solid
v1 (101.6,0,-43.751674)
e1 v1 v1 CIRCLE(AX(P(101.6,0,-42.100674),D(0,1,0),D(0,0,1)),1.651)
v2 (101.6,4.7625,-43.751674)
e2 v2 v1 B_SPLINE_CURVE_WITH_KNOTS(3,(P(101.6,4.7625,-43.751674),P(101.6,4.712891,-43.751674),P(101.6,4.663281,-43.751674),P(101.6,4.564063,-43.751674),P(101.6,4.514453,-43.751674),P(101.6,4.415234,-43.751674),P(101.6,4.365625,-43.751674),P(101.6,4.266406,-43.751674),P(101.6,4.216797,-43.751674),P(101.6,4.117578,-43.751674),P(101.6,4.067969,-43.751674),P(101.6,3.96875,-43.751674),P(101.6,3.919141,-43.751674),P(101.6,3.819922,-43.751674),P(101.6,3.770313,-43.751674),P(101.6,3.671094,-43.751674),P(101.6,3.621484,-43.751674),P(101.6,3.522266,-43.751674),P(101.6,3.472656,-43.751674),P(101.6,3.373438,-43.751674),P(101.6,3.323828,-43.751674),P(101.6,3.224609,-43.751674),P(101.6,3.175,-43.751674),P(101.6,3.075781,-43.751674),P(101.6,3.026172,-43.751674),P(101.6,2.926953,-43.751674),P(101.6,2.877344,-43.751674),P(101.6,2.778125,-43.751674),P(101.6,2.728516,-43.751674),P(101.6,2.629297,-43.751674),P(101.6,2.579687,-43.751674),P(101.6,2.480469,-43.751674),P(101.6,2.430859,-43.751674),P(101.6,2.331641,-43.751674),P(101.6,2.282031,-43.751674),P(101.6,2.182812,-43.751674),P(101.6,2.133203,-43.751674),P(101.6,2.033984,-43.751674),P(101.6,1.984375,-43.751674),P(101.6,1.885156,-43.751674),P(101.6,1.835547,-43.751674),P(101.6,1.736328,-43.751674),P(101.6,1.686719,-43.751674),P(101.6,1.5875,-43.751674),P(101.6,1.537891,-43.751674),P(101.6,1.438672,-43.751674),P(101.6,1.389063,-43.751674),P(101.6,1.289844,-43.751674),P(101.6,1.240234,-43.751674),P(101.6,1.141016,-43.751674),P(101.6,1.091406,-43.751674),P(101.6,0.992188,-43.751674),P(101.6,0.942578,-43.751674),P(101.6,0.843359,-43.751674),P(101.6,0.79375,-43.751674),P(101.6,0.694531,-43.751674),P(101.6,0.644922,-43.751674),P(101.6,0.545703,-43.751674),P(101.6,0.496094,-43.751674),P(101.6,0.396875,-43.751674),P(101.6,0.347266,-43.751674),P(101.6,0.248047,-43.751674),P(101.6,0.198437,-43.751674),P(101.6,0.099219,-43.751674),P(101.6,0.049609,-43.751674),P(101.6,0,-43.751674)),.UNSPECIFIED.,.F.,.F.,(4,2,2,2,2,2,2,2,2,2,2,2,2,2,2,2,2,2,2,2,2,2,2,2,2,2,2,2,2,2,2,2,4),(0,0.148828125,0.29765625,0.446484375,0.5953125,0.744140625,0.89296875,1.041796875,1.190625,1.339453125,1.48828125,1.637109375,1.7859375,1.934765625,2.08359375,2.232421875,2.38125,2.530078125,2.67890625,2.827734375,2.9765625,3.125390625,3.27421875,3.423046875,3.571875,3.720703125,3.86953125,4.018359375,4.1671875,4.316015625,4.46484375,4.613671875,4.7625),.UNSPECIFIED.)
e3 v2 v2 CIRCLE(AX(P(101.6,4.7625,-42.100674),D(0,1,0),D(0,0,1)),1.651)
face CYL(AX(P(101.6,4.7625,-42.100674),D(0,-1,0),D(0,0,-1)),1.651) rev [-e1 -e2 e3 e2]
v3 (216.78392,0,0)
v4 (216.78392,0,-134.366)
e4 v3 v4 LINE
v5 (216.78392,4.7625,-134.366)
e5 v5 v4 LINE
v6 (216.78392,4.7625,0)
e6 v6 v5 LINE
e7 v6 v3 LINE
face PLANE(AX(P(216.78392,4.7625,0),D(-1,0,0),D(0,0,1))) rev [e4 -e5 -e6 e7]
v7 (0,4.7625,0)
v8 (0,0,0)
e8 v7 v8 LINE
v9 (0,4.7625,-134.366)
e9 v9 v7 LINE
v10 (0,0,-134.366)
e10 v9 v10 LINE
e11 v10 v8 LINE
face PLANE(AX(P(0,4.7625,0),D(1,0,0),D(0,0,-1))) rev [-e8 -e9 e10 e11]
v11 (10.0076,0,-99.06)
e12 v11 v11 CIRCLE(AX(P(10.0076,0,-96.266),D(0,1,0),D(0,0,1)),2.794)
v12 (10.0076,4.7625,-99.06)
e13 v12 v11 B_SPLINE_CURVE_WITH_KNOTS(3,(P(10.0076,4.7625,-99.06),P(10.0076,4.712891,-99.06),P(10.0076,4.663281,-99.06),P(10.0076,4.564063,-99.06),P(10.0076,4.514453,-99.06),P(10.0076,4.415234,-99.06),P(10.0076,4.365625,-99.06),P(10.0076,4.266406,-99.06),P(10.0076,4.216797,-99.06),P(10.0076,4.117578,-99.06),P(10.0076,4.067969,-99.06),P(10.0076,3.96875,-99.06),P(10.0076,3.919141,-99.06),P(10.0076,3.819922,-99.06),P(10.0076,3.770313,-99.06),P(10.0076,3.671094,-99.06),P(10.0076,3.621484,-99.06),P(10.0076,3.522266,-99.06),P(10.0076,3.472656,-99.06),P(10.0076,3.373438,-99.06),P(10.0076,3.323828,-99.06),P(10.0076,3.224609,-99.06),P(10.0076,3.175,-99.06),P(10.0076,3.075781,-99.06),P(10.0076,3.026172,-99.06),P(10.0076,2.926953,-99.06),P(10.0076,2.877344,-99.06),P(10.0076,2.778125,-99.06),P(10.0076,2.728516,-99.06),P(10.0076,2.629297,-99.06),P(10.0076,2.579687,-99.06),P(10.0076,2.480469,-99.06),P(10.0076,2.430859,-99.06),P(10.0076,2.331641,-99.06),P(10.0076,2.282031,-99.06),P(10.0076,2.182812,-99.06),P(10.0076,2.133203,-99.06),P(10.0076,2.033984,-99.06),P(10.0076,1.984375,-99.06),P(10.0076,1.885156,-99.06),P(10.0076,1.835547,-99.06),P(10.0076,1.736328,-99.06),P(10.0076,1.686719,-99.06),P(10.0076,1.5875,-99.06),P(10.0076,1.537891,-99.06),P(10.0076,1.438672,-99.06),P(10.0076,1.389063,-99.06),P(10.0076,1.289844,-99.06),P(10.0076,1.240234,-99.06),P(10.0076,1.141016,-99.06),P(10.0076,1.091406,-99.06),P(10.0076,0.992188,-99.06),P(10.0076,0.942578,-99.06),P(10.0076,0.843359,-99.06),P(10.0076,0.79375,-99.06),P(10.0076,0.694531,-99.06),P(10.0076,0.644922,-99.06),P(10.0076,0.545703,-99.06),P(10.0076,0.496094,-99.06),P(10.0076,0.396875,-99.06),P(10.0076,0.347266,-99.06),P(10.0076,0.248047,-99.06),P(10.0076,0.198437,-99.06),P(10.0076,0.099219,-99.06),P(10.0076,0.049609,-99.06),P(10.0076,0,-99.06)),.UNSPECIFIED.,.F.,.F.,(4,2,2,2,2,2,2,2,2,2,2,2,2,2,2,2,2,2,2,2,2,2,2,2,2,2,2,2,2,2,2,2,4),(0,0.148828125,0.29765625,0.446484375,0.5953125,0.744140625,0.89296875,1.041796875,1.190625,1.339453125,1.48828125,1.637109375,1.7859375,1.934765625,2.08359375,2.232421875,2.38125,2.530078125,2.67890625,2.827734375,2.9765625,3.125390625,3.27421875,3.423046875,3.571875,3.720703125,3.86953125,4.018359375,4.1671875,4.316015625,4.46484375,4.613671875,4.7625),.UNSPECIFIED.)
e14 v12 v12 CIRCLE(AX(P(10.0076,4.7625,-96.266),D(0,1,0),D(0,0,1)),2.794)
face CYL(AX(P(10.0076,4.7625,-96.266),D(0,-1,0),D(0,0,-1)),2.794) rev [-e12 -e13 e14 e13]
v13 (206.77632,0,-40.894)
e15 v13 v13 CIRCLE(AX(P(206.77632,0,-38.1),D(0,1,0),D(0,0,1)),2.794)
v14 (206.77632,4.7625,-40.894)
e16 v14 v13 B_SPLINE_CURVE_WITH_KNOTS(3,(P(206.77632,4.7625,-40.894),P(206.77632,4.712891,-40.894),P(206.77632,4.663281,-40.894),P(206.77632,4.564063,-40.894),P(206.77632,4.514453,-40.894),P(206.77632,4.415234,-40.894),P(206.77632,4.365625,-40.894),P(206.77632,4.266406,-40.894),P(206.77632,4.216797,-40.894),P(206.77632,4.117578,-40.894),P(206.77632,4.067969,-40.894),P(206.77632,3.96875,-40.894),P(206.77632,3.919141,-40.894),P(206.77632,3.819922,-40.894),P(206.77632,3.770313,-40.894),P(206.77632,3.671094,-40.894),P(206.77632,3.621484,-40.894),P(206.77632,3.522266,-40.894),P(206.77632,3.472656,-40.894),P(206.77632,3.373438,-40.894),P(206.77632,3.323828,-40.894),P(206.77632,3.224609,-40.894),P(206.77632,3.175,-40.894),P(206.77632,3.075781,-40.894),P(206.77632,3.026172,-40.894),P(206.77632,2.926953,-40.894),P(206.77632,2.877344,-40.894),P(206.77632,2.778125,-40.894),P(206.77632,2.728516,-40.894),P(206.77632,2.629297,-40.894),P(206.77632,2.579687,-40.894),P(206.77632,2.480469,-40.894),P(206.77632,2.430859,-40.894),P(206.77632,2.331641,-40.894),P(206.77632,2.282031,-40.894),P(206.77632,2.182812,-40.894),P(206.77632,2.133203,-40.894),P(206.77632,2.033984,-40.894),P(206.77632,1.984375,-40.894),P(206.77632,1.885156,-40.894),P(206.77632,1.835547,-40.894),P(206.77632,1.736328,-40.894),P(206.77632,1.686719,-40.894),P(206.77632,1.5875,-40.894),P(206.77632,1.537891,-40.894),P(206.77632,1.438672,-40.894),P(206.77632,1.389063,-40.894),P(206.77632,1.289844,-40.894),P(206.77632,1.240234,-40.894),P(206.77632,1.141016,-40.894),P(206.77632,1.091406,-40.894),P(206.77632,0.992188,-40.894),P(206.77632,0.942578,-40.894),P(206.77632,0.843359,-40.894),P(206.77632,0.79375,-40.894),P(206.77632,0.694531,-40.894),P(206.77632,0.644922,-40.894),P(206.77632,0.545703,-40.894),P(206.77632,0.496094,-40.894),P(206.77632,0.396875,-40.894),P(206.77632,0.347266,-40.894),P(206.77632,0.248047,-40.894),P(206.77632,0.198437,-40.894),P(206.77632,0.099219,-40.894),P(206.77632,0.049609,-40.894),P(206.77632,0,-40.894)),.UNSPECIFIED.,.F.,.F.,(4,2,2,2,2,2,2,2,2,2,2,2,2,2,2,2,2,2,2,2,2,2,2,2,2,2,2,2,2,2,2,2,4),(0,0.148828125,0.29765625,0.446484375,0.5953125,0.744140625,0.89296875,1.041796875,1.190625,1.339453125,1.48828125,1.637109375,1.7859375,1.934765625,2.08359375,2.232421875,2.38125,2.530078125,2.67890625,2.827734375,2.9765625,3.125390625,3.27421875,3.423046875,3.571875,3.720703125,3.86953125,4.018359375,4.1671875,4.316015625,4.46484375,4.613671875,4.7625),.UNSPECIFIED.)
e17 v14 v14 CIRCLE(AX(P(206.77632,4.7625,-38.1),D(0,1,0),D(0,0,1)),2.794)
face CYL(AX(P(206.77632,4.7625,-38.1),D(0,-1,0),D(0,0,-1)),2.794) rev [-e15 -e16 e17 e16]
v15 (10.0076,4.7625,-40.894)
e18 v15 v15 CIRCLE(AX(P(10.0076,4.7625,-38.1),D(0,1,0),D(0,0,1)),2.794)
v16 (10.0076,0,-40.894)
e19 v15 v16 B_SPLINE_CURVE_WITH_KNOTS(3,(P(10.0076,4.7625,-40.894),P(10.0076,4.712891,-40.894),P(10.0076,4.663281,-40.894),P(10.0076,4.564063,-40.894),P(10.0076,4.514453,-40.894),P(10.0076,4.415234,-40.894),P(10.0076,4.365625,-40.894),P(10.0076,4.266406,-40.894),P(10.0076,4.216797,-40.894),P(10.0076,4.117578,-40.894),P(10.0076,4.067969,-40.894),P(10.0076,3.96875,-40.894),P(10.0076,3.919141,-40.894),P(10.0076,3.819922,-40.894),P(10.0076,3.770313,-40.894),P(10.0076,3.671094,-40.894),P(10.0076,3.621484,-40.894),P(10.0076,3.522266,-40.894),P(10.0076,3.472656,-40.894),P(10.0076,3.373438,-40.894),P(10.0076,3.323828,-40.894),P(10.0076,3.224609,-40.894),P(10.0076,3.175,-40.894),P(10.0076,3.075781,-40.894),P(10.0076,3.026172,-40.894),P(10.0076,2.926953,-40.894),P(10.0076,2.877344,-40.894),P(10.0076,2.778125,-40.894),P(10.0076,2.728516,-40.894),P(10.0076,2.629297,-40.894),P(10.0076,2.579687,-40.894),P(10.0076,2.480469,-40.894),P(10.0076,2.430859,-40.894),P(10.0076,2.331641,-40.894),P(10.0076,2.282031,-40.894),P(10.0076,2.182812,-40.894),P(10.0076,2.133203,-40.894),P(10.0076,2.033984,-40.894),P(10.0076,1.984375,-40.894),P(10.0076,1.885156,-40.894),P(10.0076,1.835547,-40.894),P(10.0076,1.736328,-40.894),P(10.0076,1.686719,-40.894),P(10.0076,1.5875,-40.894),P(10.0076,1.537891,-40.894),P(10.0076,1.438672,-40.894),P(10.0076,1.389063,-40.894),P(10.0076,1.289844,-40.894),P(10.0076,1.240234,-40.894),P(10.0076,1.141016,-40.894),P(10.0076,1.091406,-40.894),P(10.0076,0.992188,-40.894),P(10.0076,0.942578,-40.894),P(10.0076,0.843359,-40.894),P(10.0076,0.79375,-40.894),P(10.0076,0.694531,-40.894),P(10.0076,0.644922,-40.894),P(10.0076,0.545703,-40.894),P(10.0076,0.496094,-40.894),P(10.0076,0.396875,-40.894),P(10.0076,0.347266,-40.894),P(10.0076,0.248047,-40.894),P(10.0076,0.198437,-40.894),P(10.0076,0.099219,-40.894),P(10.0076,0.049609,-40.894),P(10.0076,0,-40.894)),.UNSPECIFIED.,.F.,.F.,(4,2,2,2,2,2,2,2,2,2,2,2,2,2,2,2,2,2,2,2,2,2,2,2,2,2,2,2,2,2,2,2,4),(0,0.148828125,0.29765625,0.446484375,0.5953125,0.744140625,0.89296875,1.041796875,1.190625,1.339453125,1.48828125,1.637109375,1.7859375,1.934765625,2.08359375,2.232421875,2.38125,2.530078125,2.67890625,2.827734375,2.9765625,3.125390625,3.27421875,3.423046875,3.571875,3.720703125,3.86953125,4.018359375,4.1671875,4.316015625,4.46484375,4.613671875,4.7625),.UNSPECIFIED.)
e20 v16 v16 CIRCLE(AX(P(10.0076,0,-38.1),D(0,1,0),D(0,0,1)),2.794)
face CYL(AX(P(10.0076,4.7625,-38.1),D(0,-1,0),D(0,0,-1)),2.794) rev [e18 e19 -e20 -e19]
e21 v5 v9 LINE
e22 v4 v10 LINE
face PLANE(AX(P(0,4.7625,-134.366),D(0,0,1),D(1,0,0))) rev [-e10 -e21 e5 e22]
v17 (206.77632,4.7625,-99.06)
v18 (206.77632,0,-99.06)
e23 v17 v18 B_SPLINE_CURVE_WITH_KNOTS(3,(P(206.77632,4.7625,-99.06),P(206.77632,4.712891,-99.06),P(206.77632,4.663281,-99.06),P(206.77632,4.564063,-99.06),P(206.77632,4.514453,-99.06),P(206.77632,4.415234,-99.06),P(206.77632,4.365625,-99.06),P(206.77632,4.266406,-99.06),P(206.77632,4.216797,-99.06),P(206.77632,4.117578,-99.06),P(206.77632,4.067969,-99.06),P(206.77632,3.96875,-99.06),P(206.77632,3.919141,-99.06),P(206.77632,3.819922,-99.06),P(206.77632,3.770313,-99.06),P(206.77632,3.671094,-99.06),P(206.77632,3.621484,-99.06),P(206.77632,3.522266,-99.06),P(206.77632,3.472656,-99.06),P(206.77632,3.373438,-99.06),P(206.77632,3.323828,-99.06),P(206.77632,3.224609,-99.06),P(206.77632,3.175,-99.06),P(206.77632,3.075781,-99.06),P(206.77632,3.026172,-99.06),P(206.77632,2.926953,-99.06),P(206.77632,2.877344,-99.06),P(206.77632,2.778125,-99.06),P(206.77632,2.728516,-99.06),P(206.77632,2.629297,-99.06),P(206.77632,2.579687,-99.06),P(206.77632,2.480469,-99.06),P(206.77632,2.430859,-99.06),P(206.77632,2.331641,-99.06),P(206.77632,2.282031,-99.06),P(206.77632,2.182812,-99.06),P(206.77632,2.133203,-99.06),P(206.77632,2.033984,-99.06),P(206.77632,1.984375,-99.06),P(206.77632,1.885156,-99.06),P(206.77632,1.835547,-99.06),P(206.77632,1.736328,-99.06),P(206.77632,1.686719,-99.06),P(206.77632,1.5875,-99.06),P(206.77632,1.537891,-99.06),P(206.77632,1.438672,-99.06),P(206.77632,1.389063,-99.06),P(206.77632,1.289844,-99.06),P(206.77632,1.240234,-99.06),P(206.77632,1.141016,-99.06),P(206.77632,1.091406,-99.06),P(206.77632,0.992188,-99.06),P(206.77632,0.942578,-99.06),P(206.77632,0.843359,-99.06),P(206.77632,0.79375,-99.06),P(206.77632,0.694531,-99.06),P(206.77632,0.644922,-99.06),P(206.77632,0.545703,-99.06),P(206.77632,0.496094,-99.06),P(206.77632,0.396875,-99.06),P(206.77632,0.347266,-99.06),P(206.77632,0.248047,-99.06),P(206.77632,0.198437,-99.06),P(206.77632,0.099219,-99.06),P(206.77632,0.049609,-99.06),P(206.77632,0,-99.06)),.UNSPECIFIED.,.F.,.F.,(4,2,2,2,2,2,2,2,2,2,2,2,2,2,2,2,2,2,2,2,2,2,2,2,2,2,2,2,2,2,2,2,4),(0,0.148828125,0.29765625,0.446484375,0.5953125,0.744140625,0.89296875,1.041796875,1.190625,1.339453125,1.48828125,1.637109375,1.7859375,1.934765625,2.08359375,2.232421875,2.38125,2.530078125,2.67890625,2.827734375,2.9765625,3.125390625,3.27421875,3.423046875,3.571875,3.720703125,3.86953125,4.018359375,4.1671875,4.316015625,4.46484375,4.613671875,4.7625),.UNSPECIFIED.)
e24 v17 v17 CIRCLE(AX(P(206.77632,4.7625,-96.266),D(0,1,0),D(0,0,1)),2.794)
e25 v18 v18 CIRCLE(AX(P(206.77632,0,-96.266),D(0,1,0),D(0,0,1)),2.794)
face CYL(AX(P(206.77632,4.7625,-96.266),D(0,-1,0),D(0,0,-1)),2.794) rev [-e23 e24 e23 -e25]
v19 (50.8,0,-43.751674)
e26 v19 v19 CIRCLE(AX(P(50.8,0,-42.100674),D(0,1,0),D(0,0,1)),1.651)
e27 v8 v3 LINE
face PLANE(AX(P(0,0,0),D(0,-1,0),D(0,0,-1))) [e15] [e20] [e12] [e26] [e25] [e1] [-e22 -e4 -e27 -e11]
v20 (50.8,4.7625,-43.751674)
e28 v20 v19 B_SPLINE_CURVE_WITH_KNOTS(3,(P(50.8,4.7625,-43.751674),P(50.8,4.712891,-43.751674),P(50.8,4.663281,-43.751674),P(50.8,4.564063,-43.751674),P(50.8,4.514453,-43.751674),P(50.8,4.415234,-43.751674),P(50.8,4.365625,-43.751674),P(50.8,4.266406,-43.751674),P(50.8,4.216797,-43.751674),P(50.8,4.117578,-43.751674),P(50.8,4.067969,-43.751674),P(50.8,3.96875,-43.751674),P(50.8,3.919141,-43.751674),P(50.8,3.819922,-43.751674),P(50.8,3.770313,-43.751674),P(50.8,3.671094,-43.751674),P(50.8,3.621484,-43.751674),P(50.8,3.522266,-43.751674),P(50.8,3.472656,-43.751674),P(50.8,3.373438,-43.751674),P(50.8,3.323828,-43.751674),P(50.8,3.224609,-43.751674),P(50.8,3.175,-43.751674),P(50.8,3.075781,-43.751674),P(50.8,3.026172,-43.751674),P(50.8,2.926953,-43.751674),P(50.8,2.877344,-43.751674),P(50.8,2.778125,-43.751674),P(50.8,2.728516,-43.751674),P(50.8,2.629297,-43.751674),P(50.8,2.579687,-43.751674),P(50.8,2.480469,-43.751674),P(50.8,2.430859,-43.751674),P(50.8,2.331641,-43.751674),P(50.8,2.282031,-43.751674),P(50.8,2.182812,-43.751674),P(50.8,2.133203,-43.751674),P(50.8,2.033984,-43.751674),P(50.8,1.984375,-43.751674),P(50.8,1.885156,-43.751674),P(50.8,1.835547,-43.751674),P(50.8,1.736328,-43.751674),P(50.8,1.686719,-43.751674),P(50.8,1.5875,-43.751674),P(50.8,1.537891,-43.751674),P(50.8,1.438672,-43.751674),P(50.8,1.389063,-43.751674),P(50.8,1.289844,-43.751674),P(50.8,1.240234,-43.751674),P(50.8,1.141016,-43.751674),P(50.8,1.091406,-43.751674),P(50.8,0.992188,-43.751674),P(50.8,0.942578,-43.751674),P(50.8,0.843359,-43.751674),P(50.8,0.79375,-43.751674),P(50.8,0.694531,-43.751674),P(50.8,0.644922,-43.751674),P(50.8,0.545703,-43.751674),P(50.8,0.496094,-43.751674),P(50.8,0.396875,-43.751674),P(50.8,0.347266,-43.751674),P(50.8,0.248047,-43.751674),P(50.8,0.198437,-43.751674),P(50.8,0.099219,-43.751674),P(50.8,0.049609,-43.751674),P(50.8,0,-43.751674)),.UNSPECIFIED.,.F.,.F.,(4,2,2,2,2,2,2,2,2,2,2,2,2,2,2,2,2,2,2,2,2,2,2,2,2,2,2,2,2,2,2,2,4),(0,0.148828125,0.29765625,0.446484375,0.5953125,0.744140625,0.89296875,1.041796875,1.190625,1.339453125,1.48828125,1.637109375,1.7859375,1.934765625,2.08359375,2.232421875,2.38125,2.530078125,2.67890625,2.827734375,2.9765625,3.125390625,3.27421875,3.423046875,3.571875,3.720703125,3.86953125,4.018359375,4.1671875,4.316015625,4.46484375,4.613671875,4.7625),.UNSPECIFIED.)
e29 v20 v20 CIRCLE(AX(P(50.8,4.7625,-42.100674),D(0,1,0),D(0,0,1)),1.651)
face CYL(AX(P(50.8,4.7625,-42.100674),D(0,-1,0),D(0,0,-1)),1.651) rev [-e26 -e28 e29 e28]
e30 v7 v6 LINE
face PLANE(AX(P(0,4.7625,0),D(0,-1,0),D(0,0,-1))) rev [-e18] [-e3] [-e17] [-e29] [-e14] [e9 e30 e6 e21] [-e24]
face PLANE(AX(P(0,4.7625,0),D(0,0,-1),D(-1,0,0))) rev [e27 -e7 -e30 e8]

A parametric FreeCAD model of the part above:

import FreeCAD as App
import Part
import Sketcher

V = App.Vector
Q = App.Units.Quantity

doc = App.newDocument("Part")
params = doc.addObject("Spreadsheet::Sheet", "Params")
for row, (alias, value) in enumerate([
    ("sketch1_diameter", "0.22 in"),
    ("sketch1_diameter2", "0.13 in"),
    ("sketch1_height", "5.29 in"),
    ("pad1_length", "0.1875 in"),
], start=1):
    params.set(f"A{row}", alias)
    params.set(f"B{row}", "=" + value)
    params.setAlias(f"B{row}", alias)

body = doc.addObject("PartDesign::Body", "Body")

# Sketch on XZ plane
sketch1 = body.newObject("Sketcher::SketchObject", "Sketch")
sketch1.AttachmentSupport = (doc.getObject("XZ_Plane"), [""])
sketch1.MapMode = "FlatFace"
sketch1.addGeometry([
    Part.LineSegment(V(0, -134.366, 0), V(0, 0, 0)),  # 0
    Part.LineSegment(V(0, 0, 0), V(216.78392, 0, 0)),  # 1
    Part.LineSegment(V(216.78392, 0, 0), V(216.78392, -134.366, 0)),  # 2
    Part.LineSegment(V(216.78392, -134.366, 0), V(0, -134.366, 0)),  # 3
    Part.Circle(V(10.0076, -38.1, 0), V(0, 0, 1), 2.794),  # 4
    Part.Circle(V(50.8, -42.100674, 0), V(0, 0, 1), 1.651),  # 5
    Part.Circle(V(101.6, -42.100674, 0), V(0, 0, 1), 1.651),  # 6
    Part.Circle(V(206.77632, -38.1, 0), V(0, 0, 1), 2.794),  # 7
    Part.Circle(V(10.0076, -96.266, 0), V(0, 0, 1), 2.794),  # 8
    Part.Circle(V(206.77632, -96.266, 0), V(0, 0, 1), 2.794),  # 9
], False)
sketch1.addConstraint([
    Sketcher.Constraint("Coincident", 0, 2, 1, 1),
    Sketcher.Constraint("Coincident", 1, 2, 2, 1),
    Sketcher.Constraint("Coincident", 2, 2, 3, 1),
    Sketcher.Constraint("Coincident", 3, 2, 0, 1),
    Sketcher.Constraint("Vertical", 0),
    Sketcher.Constraint("Horizontal", 1),
    Sketcher.Constraint("Vertical", 2),
    Sketcher.Constraint("Horizontal", 3),
    Sketcher.Constraint("Coincident", 0, 2, -1, 1),
    Sketcher.Constraint("Equal", 5, 6),
    Sketcher.Constraint("Equal", 4, 7),
    Sketcher.Constraint("Equal", 7, 8),
    Sketcher.Constraint("Equal", 8, 9),
    Sketcher.Constraint("Horizontal", 5, 3, 6, 3),
    Sketcher.Constraint("Horizontal", 4, 3, 7, 3),
    Sketcher.Constraint("Horizontal", 8, 3, 9, 3),
    Sketcher.Constraint("Vertical", 4, 3, 8, 3),
    Sketcher.Constraint("Vertical", 7, 3, 9, 3),
    Sketcher.Constraint("Diameter", 4, Q("0.22 in")),
    Sketcher.Constraint("Diameter", 5, Q("0.13 in")),
    Sketcher.Constraint("DistanceX", -1, 1, 5, 3, Q("2 in")),
    Sketcher.Constraint("DistanceX", -1, 1, 6, 3, Q("4 in")),
    Sketcher.Constraint("DistanceY", 0, 1, 0, 2, Q("5.29 in")),
    Sketcher.Constraint("DistanceY", 4, 3, -1, 1, Q("1.5 in")),
    Sketcher.Constraint("DistanceY", 2, 2, 9, 3, Q("1.5 in")),
    Sketcher.Constraint("DistanceX", 1, 1, 1, 2, Q("8.5348 in")),
    Sketcher.Constraint("DistanceX", -1, 1, 4, 3, Q("0.394 in")),
    Sketcher.Constraint("DistanceX", 7, 3, 1, 2, Q("0.394 in")),
    Sketcher.Constraint("DistanceY", 5, 3, -1, 1, Q("42.100674 mm")),
])
sketch1.setExpression("Constraints[18]", "Params.sketch1_diameter")
sketch1.setExpression("Constraints[19]", "Params.sketch1_diameter2")
sketch1.setExpression("Constraints[22]", "Params.sketch1_height")
pad1 = body.newObject("PartDesign::Pad", "Pad")
pad1.Profile = sketch1
pad1.setExpression("Length", "Params.pad1_length")
pad1.Reversed = True

doc.recompute()
